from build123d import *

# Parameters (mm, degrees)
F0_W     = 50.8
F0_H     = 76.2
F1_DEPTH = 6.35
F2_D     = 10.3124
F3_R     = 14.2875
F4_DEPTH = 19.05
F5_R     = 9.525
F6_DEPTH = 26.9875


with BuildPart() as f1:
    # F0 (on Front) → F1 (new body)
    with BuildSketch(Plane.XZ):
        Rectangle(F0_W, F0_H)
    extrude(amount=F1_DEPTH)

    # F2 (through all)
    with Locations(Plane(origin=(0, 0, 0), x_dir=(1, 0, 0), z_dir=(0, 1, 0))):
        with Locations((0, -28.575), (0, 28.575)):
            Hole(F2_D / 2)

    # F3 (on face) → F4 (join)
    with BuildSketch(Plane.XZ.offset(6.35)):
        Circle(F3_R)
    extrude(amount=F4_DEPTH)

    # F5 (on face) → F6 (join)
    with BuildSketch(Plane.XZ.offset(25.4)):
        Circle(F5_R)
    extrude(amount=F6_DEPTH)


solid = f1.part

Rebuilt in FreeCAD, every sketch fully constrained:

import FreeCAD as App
import Part
import Sketcher

V = App.Vector
Q = App.Units.Quantity

doc = App.newDocument("Part")
body = doc.addObject("PartDesign::Body", "Body")

sketch1 = body.newObject("Sketcher::SketchObject", "Sketch")
sketch1.AttachmentSupport = (doc.getObject("XZ_Plane"), [""])
sketch1.MapMode = "FlatFace"
sketch1.addGeometry(Part.LineSegment(V(-25, 38, 0), V(-25, -38, 0)), False)
sketch1.addGeometry(Part.LineSegment(V(-25, -38, 0), V(25, -38, 0)), False)
sketch1.addGeometry(Part.LineSegment(V(25, -38, 0), V(25, 38, 0)), False)
sketch1.addGeometry(Part.LineSegment(V(25, 38, 0), V(-25, 38, 0)), False)
sketch1.addConstraint(Sketcher.Constraint("Coincident", 0, 2, 1, 1))
sketch1.addConstraint(Sketcher.Constraint("Coincident", 1, 2, 2, 1))
sketch1.addConstraint(Sketcher.Constraint("Coincident", 2, 2, 3, 1))
sketch1.addConstraint(Sketcher.Constraint("Coincident", 3, 2, 0, 1))
sketch1.addConstraint(Sketcher.Constraint("Vertical", 0))
sketch1.addConstraint(Sketcher.Constraint("Horizontal", 1))
sketch1.addConstraint(Sketcher.Constraint("Vertical", 2))
sketch1.addConstraint(Sketcher.Constraint("Horizontal", 3))
sketch1.addConstraint(Sketcher.Constraint("Symmetric", 0, 2, 2, 2, -1, 1))
sketch1.addConstraint(Sketcher.Constraint("DistanceX", 1, 1, 1, 2, Q("2 in")))
sketch1.addConstraint(Sketcher.Constraint("DistanceY", 0, 2, 0, 1, Q("3 in")))
pad1 = body.newObject("PartDesign::Pad", "Pad")
pad1.Profile = sketch1
pad1.Length = Q("0.25 in")

sketch2 = body.newObject("Sketcher::SketchObject", "Sketch001")
sketch2.AttachmentSupport = (doc.getObject("XZ_Plane"), [""])
sketch2.MapMode = "FlatFace"
sketch2.addGeometry(Part.Circle(V(0, 29, 0), V(0, 0, 1), 5), False)
sketch2.addGeometry(Part.Circle(V(0, -29, 0), V(0, 0, 1), 5), False)
sketch2.addConstraint(Sketcher.Constraint("Equal", 0, 1))
sketch2.addConstraint(Sketcher.Constraint("Symmetric", 0, 3, 1, 3, -1, 1))
sketch2.addConstraint(Sketcher.Constraint("PointOnObject", 0, 3, -2))
sketch2.addConstraint(Sketcher.Constraint("Diameter", 0, Q("0.406 in")))
sketch2.addConstraint(Sketcher.Constraint("DistanceY", 1, 3, 0, 3, Q("2.25 in")))
doc.recompute()
hole = body.newObject("PartDesign::Hole", "Hole")
hole.Profile = sketch2
hole.ThreadType = "None"
hole.Diameter = Q("0.406 in")
hole.DepthType = "ThroughAll"
hole.Reversed = True

sketch3 = body.newObject("Sketcher::SketchObject", "Sketch002")
sketch3.AttachmentSupport = (doc.getObject("XZ_Plane"), [""])
sketch3.MapMode = "FlatFace"
sketch3.AttachmentOffset = App.Placement(V(0, 0, 0.25 * 25.4), App.Rotation())
sketch3.addGeometry(Part.Circle(V(0, 0, 0), V(0, 0, 1), 14), False)
sketch3.addConstraint(Sketcher.Constraint("Coincident", 0, 3, -1, 1))
sketch3.addConstraint(Sketcher.Constraint("Diameter", 0, Q("1.125 in")))
pad2 = body.newObject("PartDesign::Pad", "Pad001")
pad2.Profile = sketch3
pad2.Length = Q("0.75 in")

sketch4 = body.newObject("Sketcher::SketchObject", "Sketch003")
sketch4.AttachmentSupport = (doc.getObject("XZ_Plane"), [""])
sketch4.MapMode = "FlatFace"
sketch4.AttachmentOffset = App.Placement(V(0, 0, 1 * 25.4), App.Rotation())
sketch4.addGeometry(Part.Circle(V(0, 0, 0), V(0, 0, 1), 10), False)
sketch4.addConstraint(Sketcher.Constraint("Coincident", 0, 3, -1, 1))
sketch4.addConstraint(Sketcher.Constraint("Diameter", 0, Q("0.75 in")))
pad3 = body.newObject("PartDesign::Pad", "Pad002")
pad3.Profile = sketch4
pad3.Length = Q("1.0625 in")

doc.recompute()
